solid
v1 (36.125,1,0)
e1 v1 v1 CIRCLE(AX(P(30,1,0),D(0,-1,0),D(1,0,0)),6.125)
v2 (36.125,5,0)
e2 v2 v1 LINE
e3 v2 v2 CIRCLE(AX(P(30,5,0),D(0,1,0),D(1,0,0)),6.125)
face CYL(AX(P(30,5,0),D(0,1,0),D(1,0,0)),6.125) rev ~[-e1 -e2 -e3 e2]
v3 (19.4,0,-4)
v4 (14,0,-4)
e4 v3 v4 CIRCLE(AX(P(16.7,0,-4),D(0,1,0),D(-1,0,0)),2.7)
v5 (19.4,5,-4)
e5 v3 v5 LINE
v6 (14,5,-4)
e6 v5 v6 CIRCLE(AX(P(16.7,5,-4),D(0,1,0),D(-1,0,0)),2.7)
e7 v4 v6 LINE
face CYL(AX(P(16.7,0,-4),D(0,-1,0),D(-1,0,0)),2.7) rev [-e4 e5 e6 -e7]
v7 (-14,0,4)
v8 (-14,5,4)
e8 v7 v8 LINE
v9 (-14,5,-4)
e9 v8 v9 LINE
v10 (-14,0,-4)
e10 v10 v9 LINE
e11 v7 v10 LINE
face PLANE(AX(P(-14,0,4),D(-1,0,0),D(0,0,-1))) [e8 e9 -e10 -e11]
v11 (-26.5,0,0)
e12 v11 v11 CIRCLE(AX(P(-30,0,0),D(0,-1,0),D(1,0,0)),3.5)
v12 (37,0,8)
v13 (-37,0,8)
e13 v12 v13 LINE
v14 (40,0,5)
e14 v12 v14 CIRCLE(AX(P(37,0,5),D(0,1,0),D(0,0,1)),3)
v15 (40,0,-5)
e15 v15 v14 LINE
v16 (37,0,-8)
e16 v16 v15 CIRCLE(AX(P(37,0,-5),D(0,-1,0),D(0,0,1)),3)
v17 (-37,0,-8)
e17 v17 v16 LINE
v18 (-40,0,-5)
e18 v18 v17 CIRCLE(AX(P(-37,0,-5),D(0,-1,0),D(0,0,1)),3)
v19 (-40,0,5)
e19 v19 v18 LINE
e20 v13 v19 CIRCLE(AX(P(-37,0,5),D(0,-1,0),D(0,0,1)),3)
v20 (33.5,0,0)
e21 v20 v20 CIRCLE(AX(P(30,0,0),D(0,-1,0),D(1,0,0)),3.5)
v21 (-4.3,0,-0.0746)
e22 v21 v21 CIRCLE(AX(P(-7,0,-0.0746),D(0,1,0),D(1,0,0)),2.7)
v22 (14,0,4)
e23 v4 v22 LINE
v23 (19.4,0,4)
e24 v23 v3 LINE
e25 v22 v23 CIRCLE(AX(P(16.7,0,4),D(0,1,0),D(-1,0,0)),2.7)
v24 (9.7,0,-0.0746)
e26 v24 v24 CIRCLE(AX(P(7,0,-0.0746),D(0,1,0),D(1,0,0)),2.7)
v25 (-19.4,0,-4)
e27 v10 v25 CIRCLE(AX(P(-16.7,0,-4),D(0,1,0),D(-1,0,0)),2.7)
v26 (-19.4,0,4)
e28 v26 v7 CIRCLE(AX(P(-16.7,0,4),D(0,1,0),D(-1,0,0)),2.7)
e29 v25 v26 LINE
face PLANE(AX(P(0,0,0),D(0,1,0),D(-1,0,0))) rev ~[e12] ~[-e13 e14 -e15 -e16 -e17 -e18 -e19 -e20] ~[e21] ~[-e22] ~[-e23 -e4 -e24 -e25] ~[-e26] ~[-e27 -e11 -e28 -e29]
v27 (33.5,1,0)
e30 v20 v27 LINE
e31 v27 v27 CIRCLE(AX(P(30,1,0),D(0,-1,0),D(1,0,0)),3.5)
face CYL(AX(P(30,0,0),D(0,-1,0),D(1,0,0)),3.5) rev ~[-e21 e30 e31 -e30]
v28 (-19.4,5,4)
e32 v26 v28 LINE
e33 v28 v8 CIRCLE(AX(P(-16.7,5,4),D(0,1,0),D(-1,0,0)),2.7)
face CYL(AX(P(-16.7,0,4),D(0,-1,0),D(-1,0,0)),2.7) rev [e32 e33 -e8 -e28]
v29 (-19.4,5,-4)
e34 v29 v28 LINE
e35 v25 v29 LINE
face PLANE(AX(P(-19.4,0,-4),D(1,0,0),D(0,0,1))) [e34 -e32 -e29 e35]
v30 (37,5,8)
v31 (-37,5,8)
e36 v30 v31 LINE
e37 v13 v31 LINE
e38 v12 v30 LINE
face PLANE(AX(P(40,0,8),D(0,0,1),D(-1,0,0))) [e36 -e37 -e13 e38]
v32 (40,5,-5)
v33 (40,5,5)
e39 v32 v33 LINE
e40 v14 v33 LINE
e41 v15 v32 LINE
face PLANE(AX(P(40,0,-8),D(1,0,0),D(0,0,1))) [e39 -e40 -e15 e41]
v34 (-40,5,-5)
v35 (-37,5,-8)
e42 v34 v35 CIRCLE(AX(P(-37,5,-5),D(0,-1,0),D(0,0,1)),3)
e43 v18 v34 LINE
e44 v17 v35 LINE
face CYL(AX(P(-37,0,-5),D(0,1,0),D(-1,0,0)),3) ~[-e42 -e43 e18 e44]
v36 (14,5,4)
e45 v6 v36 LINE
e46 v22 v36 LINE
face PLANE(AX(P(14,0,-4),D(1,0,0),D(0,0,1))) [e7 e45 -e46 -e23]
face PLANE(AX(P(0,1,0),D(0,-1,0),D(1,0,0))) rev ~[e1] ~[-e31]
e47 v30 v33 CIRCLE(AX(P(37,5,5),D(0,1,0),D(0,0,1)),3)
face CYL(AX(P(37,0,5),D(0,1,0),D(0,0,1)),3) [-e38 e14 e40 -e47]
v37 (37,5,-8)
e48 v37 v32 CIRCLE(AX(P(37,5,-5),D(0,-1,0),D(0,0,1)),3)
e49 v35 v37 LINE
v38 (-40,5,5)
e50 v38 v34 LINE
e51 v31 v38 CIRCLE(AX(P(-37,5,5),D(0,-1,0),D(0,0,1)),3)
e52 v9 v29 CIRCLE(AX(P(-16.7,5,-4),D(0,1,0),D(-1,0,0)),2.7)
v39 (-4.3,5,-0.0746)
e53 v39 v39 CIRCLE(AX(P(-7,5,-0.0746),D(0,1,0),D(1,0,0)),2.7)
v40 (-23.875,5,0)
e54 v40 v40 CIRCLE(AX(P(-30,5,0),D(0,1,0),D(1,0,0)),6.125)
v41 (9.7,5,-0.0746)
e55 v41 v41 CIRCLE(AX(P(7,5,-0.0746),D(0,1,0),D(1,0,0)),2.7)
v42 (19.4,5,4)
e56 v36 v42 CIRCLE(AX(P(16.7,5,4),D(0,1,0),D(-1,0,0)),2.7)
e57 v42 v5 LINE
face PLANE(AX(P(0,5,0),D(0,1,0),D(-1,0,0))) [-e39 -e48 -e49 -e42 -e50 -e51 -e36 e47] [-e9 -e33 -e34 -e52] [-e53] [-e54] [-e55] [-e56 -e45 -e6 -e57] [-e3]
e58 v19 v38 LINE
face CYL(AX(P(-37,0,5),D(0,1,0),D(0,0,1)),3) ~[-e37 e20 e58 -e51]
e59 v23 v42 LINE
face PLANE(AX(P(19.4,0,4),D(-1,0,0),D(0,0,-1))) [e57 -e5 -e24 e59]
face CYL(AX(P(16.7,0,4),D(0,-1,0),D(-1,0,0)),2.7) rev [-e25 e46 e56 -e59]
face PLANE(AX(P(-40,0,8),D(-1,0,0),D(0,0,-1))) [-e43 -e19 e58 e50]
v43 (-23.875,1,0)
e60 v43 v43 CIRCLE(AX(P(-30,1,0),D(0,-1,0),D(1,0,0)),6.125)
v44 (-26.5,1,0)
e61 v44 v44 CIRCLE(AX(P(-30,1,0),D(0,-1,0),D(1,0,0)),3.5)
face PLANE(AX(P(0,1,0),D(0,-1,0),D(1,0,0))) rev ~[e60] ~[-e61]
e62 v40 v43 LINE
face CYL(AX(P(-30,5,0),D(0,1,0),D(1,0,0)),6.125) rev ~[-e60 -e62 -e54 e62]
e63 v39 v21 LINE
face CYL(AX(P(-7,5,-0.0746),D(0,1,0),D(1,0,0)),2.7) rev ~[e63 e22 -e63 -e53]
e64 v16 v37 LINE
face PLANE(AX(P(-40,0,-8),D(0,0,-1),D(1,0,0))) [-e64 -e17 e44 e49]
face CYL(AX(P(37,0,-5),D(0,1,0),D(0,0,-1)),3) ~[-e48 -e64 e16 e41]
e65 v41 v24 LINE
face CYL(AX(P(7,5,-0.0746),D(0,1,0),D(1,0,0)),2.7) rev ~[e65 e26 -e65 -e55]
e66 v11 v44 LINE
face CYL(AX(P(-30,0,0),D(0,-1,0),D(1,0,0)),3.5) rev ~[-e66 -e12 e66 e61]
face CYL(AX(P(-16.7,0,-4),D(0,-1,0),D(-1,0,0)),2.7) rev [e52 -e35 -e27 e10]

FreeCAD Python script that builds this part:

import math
import FreeCAD as App
import Part
import Sketcher

V = App.Vector
Q = App.Units.Quantity


def edges_at(feature, points):
    """Names of the edges that pass closest to the given points."""
    edges = feature.Shape.Edges
    near = lambda p: min(range(len(edges)), key=lambda i: edges[i].distToShape(Part.Vertex(*p))[0])
    return sorted({f"Edge{near(p) + 1}" for p in points})

doc = App.newDocument("Part")
body = doc.addObject("PartDesign::Body", "Body")

# Sketch on XZ plane
sketch1 = body.newObject("Sketcher::SketchObject", "Sketch")
sketch1.AttachmentSupport = (doc.getObject("XZ_Plane"), [""])
sketch1.MapMode = "FlatFace"
sketch1.addGeometry([
    Part.LineSegment(V(-40, 8, 0), V(40, 8, 0)),  # 0
    Part.LineSegment(V(40, 8, 0), V(40, -8, 0)),  # 1
    Part.LineSegment(V(40, -8, 0), V(-40, -8, 0)),  # 2
    Part.LineSegment(V(-40, -8, 0), V(-40, 8, 0)),  # 3
    Part.ArcOfCircle(Part.Circle(V(16.7, 4, 0), V(0, 0, 1), 2.7), math.radians(0), math.radians(180)),  # 4
    Part.LineSegment(V(14, 4, 0), V(14, -4, 0)),  # 5
    Part.ArcOfCircle(Part.Circle(V(16.7, -4, 0), V(0, 0, 1), 2.7), math.radians(180), math.radians(360)),  # 6
    Part.LineSegment(V(19.4, -4, 0), V(19.4, 4, 0)),  # 7
    Part.ArcOfCircle(Part.Circle(V(-16.7, 4, 0), V(0, 0, 1), 2.7), math.radians(0), math.radians(180)),  # 8
    Part.LineSegment(V(-19.4, 4, 0), V(-19.4, -4, 0)),  # 9
    Part.ArcOfCircle(Part.Circle(V(-16.7, -4, 0), V(0, 0, 1), 2.7), math.radians(180), math.radians(360)),  # 10
    Part.LineSegment(V(-14, -4, 0), V(-14, 4, 0)),  # 11
], False)
sketch1.addConstraint([
    Sketcher.Constraint("Coincident", 0, 2, 1, 1),
    Sketcher.Constraint("Coincident", 1, 2, 2, 1),
    Sketcher.Constraint("Coincident", 2, 2, 3, 1),
    Sketcher.Constraint("Coincident", 3, 2, 0, 1),
    Sketcher.Constraint("Tangent", 4, 2, 5, 1),
    Sketcher.Constraint("Tangent", 5, 2, 6, 1),
    Sketcher.Constraint("Tangent", 6, 2, 7, 1),
    Sketcher.Constraint("Tangent", 7, 2, 4, 1),
    Sketcher.Constraint("Tangent", 8, 2, 9, 1),
    Sketcher.Constraint("Tangent", 9, 2, 10, 1),
    Sketcher.Constraint("Tangent", 10, 2, 11, 1),
    Sketcher.Constraint("Tangent", 11, 2, 8, 1),
    Sketcher.Constraint("Horizontal", 0),
    Sketcher.Constraint("Vertical", 1),
    Sketcher.Constraint("Horizontal", 2),
    Sketcher.Constraint("Vertical", 3),
    Sketcher.Constraint("Vertical", 5),
    Sketcher.Constraint("Vertical", 7),
    Sketcher.Constraint("Vertical", 9),
    Sketcher.Constraint("Vertical", 11),
    Sketcher.Constraint("Equal", 6, 8),
    Sketcher.Constraint("Symmetric", 6, 3, 8, 3, -1, 1),
    Sketcher.Constraint("Symmetric", 0, 2, 2, 2, -1, 1),
    Sketcher.Constraint("Horizontal", 4, 3, 8, 3),
    Sketcher.Constraint("Horizontal", 6, 3, 10, 3),
    Sketcher.Constraint("Radius", 4, Q("2.7 mm")),
    Sketcher.Constraint("DistanceX", 0, 1, 0, 2, Q("80 mm")),
    Sketcher.Constraint("DistanceY", 1, 2, 1, 1, Q("16 mm")),
    Sketcher.Constraint("DistanceY", 5, 2, 5, 1, Q("8 mm")),
    Sketcher.Constraint("DistanceX", 4, 3, 0, 2, Q("23.3 mm")),
])
pad1 = body.newObject("PartDesign::Pad", "Pad")
pad1.Profile = sketch1
pad1.Length = 5
pad1.Reversed = True
doc.recompute()

fillet = body.newObject("PartDesign::Fillet", "Fillet")
fillet.Base = (pad1, edges_at(pad1, [
    (-40, 2.5, 8),
    (-40, 2.5, -8),
    (40, 2.5, 8),
    (40, 2.5, -8),
]))
fillet.Radius = 3

# Sketch on XZ plane
sketch2 = body.newObject("Sketcher::SketchObject", "Sketch001")
sketch2.AttachmentSupport = (doc.getObject("XZ_Plane"), [""])
sketch2.MapMode = "FlatFace"
sketch2.AttachmentOffset = App.Placement(V(0, 0, -5), App.Rotation())
sketch2.addGeometry([
    Part.Circle(V(-30, 0, 0), V(0, 0, 1), 6.125),
    Part.Circle(V(30, 0, 0), V(0, 0, 1), 6.125),
], False)
sketch2.addConstraint([
    Sketcher.Constraint("Equal", 0, 1),
    Sketcher.Constraint("Symmetric", 0, 3, 1, 3, -1, 1),
    Sketcher.Constraint("PointOnObject", 0, 3, -1),
    Sketcher.Constraint("Diameter", 0, Q("12.25 mm")),
    Sketcher.Constraint("DistanceX", 0, 3, -1, 1, Q("30 mm")),
])
pocket1 = body.newObject("PartDesign::Pocket", "Pocket")
pocket1.Profile = sketch2
pocket1.Type = "ThroughAll"
pocket1.Reversed = True

# Sketch on XZ plane
sketch3 = body.newObject("Sketcher::SketchObject", "Sketch002")
sketch3.AttachmentSupport = (doc.getObject("XZ_Plane"), [""])
sketch3.MapMode = "FlatFace"
sketch3.addGeometry([
    Part.Circle(V(-30, 0, 0), V(0, 0, 1), 6.125),
    Part.Circle(V(-30, 0, 0), V(0, 0, 1), 3.5),
    Part.Circle(V(30, 0, 0), V(0, 0, 1), 6.125),
    Part.Circle(V(30, 0, 0), V(0, 0, 1), 3.5),
], False)
sketch3.addConstraint([
    Sketcher.Constraint("Coincident", 1, 3, 0, 3),
    Sketcher.Constraint("Coincident", 3, 3, 2, 3),
    Sketcher.Constraint("Equal", 0, 2),
    Sketcher.Constraint("Equal", 1, 3),
    Sketcher.Constraint("Symmetric", 0, 3, 2, 3, -1, 1),
    Sketcher.Constraint("PointOnObject", 0, 3, -1),
    Sketcher.Constraint("Diameter", 1, Q("7 mm")),
    Sketcher.Constraint("Diameter", 0, Q("12.25 mm")),
    Sketcher.Constraint("DistanceX", 0, 3, -1, 1, Q("30 mm")),
])
pad2 = body.newObject("PartDesign::Pad", "Pad001")
pad2.Profile = sketch3
pad2.Length = 1
pad2.Reversed = True

# Sketch on XZ plane
sketch4 = body.newObject("Sketcher::SketchObject", "Sketch003")
sketch4.AttachmentSupport = (doc.getObject("XZ_Plane"), [""])
sketch4.MapMode = "FlatFace"
sketch4.AttachmentOffset = App.Placement(V(0, 0, -5), App.Rotation())
sketch4.addGeometry([
    Part.Circle(V(-7, -0.0746, 0), V(0, 0, 1), 2.7),
    Part.Circle(V(7, -0.0746, 0), V(0, 0, 1), 2.7),
], False)
sketch4.addConstraint([
    Sketcher.Constraint("Equal", 0, 1),
    Sketcher.Constraint("Symmetric", 0, 3, 1, 3, -2),
    Sketcher.Constraint("Diameter", 0, Q("5.4 mm")),
    Sketcher.Constraint("DistanceX", 0, 3, -1, 1, Q("7 mm")),
    Sketcher.Constraint("DistanceY", 0, 3, -1, 1, Q("0.0746 mm")),
])
pocket2 = body.newObject("PartDesign::Pocket", "Pocket001")
pocket2.Profile = sketch4
pocket2.Type = "ThroughAll"
pocket2.Reversed = True

doc.recompute()
